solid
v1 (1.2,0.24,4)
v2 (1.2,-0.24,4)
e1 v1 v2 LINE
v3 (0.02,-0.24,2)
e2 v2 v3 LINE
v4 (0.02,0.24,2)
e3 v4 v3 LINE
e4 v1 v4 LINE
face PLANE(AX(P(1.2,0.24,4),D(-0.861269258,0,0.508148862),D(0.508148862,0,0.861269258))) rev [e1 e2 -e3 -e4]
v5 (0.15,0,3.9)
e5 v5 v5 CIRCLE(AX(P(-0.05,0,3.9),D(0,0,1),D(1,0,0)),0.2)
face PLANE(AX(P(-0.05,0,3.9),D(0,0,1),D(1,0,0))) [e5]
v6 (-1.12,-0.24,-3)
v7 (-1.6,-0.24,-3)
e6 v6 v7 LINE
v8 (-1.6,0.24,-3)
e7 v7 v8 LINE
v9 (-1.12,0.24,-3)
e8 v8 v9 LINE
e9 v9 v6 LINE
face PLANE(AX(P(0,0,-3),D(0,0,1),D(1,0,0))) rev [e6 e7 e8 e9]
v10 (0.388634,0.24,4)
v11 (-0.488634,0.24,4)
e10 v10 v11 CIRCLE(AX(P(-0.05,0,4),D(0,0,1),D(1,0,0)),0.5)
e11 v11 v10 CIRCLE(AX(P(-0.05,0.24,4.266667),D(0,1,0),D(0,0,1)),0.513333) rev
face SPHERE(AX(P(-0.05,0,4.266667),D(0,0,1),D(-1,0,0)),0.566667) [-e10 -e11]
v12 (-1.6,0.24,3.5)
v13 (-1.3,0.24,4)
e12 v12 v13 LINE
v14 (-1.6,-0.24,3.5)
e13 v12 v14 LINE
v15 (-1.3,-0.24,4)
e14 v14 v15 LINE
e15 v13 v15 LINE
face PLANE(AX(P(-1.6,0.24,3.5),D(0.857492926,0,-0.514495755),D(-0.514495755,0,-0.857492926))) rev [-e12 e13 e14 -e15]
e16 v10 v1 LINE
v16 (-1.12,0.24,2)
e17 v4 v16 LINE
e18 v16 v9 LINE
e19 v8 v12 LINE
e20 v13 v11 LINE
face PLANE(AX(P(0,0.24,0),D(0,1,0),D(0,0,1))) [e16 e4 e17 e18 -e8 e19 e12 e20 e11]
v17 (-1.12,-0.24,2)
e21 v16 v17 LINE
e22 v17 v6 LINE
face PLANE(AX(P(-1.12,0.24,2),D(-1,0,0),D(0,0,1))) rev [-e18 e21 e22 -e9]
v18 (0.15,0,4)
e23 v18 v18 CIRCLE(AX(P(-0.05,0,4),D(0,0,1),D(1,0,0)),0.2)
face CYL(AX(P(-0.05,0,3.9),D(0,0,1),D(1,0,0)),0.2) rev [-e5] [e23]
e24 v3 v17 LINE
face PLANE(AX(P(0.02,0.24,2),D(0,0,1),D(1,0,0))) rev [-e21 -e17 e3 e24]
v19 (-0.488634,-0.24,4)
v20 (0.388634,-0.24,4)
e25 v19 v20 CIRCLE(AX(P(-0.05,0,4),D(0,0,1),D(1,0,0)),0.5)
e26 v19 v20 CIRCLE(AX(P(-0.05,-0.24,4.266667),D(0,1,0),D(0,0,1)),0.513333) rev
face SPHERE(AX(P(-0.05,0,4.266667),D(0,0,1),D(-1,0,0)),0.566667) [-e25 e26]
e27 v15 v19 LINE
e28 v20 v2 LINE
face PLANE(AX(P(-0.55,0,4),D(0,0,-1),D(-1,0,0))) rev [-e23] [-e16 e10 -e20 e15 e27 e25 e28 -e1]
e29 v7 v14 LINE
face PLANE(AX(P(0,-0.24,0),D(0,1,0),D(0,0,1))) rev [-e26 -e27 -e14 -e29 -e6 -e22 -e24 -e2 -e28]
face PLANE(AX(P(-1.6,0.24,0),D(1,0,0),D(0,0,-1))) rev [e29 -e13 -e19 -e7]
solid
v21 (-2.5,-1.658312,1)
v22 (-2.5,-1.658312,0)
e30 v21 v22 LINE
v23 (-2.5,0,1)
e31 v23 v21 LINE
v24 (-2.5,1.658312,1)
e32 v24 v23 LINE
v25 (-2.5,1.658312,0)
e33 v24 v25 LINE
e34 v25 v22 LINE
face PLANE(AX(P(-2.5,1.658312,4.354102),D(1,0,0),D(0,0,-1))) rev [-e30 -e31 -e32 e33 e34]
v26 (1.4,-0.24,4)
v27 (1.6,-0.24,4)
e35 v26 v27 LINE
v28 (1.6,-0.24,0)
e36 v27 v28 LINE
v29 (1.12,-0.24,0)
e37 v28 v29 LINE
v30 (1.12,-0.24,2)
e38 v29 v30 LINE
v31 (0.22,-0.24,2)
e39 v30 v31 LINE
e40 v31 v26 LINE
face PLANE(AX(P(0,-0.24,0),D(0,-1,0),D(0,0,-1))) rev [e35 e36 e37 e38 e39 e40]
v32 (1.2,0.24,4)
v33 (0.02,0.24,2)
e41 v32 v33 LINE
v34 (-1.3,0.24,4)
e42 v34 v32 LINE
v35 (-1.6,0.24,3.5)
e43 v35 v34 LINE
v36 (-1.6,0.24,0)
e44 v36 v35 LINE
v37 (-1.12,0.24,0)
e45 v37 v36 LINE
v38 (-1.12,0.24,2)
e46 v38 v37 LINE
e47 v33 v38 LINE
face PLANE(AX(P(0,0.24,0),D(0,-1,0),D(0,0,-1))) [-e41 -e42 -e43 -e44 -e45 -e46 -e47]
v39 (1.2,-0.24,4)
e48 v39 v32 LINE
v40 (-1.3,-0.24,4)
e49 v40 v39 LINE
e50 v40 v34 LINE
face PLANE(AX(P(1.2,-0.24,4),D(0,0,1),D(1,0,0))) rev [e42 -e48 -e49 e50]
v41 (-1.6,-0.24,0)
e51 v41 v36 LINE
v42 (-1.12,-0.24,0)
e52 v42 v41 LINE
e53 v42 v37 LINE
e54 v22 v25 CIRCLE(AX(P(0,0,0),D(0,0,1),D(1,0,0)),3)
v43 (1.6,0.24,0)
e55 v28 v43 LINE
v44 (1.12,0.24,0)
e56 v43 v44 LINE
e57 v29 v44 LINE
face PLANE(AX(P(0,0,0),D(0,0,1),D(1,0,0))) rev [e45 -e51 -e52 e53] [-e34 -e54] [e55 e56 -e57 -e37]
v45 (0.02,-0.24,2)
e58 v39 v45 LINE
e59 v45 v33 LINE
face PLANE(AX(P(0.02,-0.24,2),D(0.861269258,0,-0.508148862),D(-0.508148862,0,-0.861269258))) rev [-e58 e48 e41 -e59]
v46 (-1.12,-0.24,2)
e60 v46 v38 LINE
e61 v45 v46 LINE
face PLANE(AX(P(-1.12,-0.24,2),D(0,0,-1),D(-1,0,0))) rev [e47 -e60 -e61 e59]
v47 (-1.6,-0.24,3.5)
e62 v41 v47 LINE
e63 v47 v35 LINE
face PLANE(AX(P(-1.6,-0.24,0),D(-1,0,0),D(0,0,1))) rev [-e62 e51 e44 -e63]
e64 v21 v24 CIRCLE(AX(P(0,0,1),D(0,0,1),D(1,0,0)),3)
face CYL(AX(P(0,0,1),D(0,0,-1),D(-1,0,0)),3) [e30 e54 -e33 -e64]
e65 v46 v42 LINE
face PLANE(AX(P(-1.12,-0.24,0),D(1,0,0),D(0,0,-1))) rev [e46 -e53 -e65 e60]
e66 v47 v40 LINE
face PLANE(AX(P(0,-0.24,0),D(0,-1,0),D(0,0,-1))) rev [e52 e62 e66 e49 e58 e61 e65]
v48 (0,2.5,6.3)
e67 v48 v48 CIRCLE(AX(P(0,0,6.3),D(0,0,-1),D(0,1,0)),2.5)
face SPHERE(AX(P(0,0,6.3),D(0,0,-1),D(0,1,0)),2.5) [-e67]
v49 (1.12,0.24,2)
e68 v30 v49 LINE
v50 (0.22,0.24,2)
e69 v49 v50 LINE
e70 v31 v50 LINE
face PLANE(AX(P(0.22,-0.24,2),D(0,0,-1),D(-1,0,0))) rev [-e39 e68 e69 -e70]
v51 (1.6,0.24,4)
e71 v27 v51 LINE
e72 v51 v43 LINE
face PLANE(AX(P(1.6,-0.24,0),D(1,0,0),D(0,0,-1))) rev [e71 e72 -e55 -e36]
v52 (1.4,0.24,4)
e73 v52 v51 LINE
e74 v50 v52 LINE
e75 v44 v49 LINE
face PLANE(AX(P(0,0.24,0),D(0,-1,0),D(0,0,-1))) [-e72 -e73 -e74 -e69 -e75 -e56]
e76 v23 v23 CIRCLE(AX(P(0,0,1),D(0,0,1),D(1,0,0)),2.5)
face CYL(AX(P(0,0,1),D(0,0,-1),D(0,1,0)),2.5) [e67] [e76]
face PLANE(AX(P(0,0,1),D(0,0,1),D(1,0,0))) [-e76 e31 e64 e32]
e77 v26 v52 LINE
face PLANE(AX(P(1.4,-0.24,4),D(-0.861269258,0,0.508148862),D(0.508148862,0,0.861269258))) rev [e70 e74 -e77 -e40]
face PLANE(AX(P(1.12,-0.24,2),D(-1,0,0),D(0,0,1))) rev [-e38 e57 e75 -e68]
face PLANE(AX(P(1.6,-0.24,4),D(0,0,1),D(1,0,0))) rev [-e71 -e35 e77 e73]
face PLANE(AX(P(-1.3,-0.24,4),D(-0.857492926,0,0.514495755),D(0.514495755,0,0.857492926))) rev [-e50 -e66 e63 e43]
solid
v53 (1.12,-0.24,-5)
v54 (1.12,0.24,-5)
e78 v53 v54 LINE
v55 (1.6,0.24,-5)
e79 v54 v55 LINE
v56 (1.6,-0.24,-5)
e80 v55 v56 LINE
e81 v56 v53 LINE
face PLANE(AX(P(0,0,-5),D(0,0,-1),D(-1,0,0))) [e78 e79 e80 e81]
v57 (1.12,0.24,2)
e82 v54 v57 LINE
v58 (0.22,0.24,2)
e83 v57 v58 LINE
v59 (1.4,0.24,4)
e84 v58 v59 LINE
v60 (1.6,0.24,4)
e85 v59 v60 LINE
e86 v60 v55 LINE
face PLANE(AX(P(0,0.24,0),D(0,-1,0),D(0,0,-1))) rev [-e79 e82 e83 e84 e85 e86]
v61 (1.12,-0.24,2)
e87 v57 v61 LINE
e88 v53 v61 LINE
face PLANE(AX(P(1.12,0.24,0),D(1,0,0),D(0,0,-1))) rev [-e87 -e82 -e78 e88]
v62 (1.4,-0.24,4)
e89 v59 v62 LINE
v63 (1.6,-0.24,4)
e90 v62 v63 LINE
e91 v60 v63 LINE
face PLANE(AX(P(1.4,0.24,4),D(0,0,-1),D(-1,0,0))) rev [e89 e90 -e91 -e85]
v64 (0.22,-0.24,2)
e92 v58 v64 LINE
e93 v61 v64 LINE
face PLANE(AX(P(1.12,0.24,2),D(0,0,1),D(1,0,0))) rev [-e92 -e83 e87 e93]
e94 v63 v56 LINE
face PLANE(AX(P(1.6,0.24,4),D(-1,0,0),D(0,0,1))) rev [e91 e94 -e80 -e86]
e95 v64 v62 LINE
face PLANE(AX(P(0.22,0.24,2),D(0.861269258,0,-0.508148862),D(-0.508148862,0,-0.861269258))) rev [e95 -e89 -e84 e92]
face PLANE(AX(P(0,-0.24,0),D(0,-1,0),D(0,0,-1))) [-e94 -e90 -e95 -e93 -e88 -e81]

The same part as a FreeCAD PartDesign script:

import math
import FreeCAD as App
import Part
import Sketcher

V = App.Vector
Q = App.Units.Quantity


def add_polygon(sketch, points):
    """Adds a closed chain of lines whose ends are joined by coincident constraints."""
    first, n = sketch.GeometryCount, len(points)
    for a, b in zip(points, points[1:] + points[:1]):
        sketch.addGeometry(Part.LineSegment(App.Vector(*a, 0), App.Vector(*b, 0)), False)
    for i in range(n):
        sketch.addConstraint(Sketcher.Constraint("Coincident", first + i, 2, first + (i + 1) % n, 1))

doc = App.newDocument("Part")
body = doc.addObject("PartDesign::Body", "Body")

# Sketch on XY plane
sketch1 = body.newObject("Sketcher::SketchObject", "Sketch")
sketch1.AttachmentSupport = (doc.getObject("XY_Plane"), [""])
sketch1.MapMode = "FlatFace"
sketch1.addGeometry(Part.Circle(V(0, 0, 0), V(0, 0, 1), 3), False)
sketch1.addConstraint([
    Sketcher.Constraint("Coincident", 0, 3, -1, 1),
    Sketcher.Constraint("Diameter", 0, Q("6 mm")),
])
pad1 = body.newObject("PartDesign::Pad", "Pad")
pad1.Profile = sketch1
pad1.Length = 1

# Sketch on YZ plane
sketch2 = body.newObject("Sketcher::SketchObject", "Sketch001")
sketch2.AttachmentSupport = (doc.getObject("YZ_Plane"), [""])
sketch2.MapMode = "FlatFace"
sketch2.addGeometry([
    Part.LineSegment(V(0, 8.8, 0), V(0, 1, 0)),
    Part.LineSegment(V(0, 1, 0), V(2.5, 1, 0)),
    Part.LineSegment(V(2.5, 1, 0), V(2.5, 6.3, 0)),
    Part.ArcOfCircle(Part.Circle(V(0, 6.3, 0), V(0, 0, 1), 2.5), math.radians(0), math.radians(90)),
], False)
sketch2.addConstraint([
    Sketcher.Constraint("Coincident", 0, 2, 1, 1),
    Sketcher.Constraint("Coincident", 1, 2, 2, 1),
    Sketcher.Constraint("Tangent", 2, 2, 3, 1),
    Sketcher.Constraint("Coincident", 3, 2, 0, 1),
    Sketcher.Constraint("Vertical", 0),
    Sketcher.Constraint("Horizontal", 1),
    Sketcher.Constraint("Vertical", 2),
    Sketcher.Constraint("PointOnObject", 3, 3, -2),
    Sketcher.Constraint("PointOnObject", 0, 2, -2),
    Sketcher.Constraint("Radius", 3, Q("2.5 mm")),
    Sketcher.Constraint("DistanceY", 0, 2, 0, 1, Q("7.8 mm")),
    Sketcher.Constraint("DistanceY", -1, 1, 0, 2, Q("1 mm")),
])
revolution = body.newObject("PartDesign::Revolution", "Revolution")
revolution.Profile = sketch2
revolution.ReferenceAxis = (sketch2, ["V_Axis"])
revolution.Angle = 360

# Sketch on XY plane
sketch3 = body.newObject("Sketcher::SketchObject", "Sketch002")
sketch3.AttachmentSupport = (doc.getObject("XY_Plane"), [""])
sketch3.MapMode = "FlatFace"
sketch3.addGeometry([
    Part.LineSegment(V(-2.5, 1.7, 0), V(-2.5, -1.7, 0)),
    Part.ArcOfCircle(Part.Circle(V(0, 0, 0), V(0, 0, 1), 3), math.radians(146), math.radians(214)),
], False)
sketch3.addConstraint([
    Sketcher.Constraint("Coincident", 0, 1, 1, 1),
    Sketcher.Constraint("Coincident", 1, 2, 0, 2),
    Sketcher.Constraint("Vertical", 0),
    Sketcher.Constraint("Coincident", 1, 3, -1, 1),
    Sketcher.Constraint("Radius", 1, Q("3 mm")),
    Sketcher.Constraint("DistanceX", 0, 1, -1, 1, Q("2.5 mm")),
])
pocket1 = body.newObject("PartDesign::Pocket", "Pocket")
pocket1.Profile = sketch3
pocket1.Length = 1
pocket1.Reversed = True

# Sketch on XZ plane
sketch4 = body.newObject("Sketcher::SketchObject", "Sketch003")
sketch4.AttachmentSupport = (doc.getObject("XZ_Plane"), [""])
sketch4.MapMode = "FlatFace"
add_polygon(sketch4, [(-1.6, 0), (-1.6, 3.5), (-1.3, 4), (1.2, 4), (0.02, 2), (-1.12, 2), (-1.12, 0)])  # lines 0-6
add_polygon(sketch4, [(1.6, 4), (1.6, 0), (1.12, 0), (1.12, 2), (0.22, 2), (1.4, 4)])  # lines 7-12
sketch4.addConstraint([
    Sketcher.Constraint("Vertical", 0),
    Sketcher.Constraint("Horizontal", 2),
    Sketcher.Constraint("Horizontal", 4),
    Sketcher.Constraint("Vertical", 5),
    Sketcher.Constraint("Horizontal", 6),
    Sketcher.Constraint("Vertical", 7),
    Sketcher.Constraint("Horizontal", 8),
    Sketcher.Constraint("Vertical", 9),
    Sketcher.Constraint("Horizontal", 10),
    Sketcher.Constraint("Horizontal", 12),
    Sketcher.Constraint("Symmetric", 6, 2, 7, 2, -1, 1),
    Sketcher.Constraint("Symmetric", 5, 2, 8, 2, -2),
    Sketcher.Constraint("Parallel", 3, 11),
    Sketcher.Constraint("Horizontal", 4, 2, 9, 2),
    Sketcher.Constraint("Horizontal", 2, 2, 11, 2),
    Sketcher.Constraint("DistanceY", 5, 2, 5, 1, Q("2 mm")),
    Sketcher.Constraint("DistanceY", 7, 2, 7, 1, Q("4 mm")),
    Sketcher.Constraint("DistanceX", 2, 1, 2, 2, Q("2.5 mm")),
    Sketcher.Constraint("DistanceX", 10, 2, 10, 1, Q("0.9 mm")),
    Sketcher.Constraint("DistanceX", 12, 1, 12, 2, Q("0.2 mm")),
    Sketcher.Constraint("DistanceY", 0, 1, 0, 2, Q("3.5 mm")),
    Sketcher.Constraint("DistanceX", 4, 2, 4, 1, Q("1.14 mm")),
    Sketcher.Constraint("DistanceX", 6, 2, 6, 1, Q("0.48 mm")),
    Sketcher.Constraint("DistanceX", 0, 2, -1, 1, Q("1.6 mm")),
])
pocket2 = body.newObject("PartDesign::Pocket", "Pocket001")
pocket2.Profile = sketch4
pocket2.Length = 0.48
pocket2.Midplane = True
body2 = doc.addObject("PartDesign::Body", "Body001")

# Sketch on XY plane
sketch5 = body2.newObject("Sketcher::SketchObject", "Sketch004")
sketch5.AttachmentSupport = (doc.getObject("XY_Plane001"), [""])
sketch5.MapMode = "FlatFace"
add_polygon(sketch5, [(1.6, 0.24), (1.6, -0.24), (1.12, -0.24), (1.12, 0.24)])  # lines 0-3
sketch5.addConstraint([
    Sketcher.Constraint("Vertical", 0),
    Sketcher.Constraint("Horizontal", 1),
    Sketcher.Constraint("Vertical", 2),
    Sketcher.Constraint("Horizontal", 3),
    Sketcher.Constraint("Equal", 3, 0),
    Sketcher.Constraint("DistanceX", 1, 2, 1, 1, Q("0.48 mm")),
    Sketcher.Constraint("DistanceX", -1, 1, 0, 2, Q("1.6 mm")),
    Sketcher.Constraint("DistanceY", 0, 2, -1, 1, Q("0.24 mm")),
])
pad2 = body2.newObject("PartDesign::Pad", "Pad001")
pad2.Profile = sketch5
pad2.Length = 3
pad2.Reversed = True
body3 = doc.addObject("PartDesign::Body", "Body002")

# Sketch on XY plane
sketch6 = body3.newObject("Sketcher::SketchObject", "Sketch005")
sketch6.AttachmentSupport = (doc.getObject("XY_Plane002"), [""])
sketch6.MapMode = "FlatFace"
add_polygon(sketch6, [(-1.12, 0.24), (-1.12, -0.24), (-1.6, -0.24), (-1.6, 0.24)])  # lines 0-3
sketch6.addConstraint([
    Sketcher.Constraint("Vertical", 0),
    Sketcher.Constraint("Horizontal", 1),
    Sketcher.Constraint("Vertical", 2),
    Sketcher.Constraint("Horizontal", 3),
    Sketcher.Constraint("Equal", 3, 0),
    Sketcher.Constraint("DistanceX", 1, 2, 1, 1, Q("0.48 mm")),
    Sketcher.Constraint("DistanceX", 1, 2, -1, 1, Q("1.6 mm")),
    Sketcher.Constraint("DistanceY", 0, 2, -1, 1, Q("0.24 mm")),
])
pad3 = body3.newObject("PartDesign::Pad", "Pad002")
pad3.Profile = sketch6
pad3.Length = 3
pad3.Reversed = True
body4 = doc.addObject("PartDesign::Body", "Body003")

# Sketch on XY plane
sketch7 = body4.newObject("Sketcher::SketchObject", "Sketch006")
sketch7.AttachmentSupport = (doc.getObject("XY_Plane003"), [""])
sketch7.MapMode = "FlatFace"
sketch7.AttachmentOffset = App.Placement(V(0, 0, -3), App.Rotation())
add_polygon(sketch7, [(1.6, 0.24), (1.6, -0.24), (1.12, -0.24), (1.12, 0.24)])  # lines 0-3
sketch7.addConstraint([
    Sketcher.Constraint("Vertical", 0),
    Sketcher.Constraint("Horizontal", 1),
    Sketcher.Constraint("Vertical", 2),
    Sketcher.Constraint("Horizontal", 3),
    Sketcher.Constraint("Equal", 3, 0),
    Sketcher.Constraint("DistanceX", 1, 2, 1, 1, Q("0.48 mm")),
    Sketcher.Constraint("DistanceX", -1, 1, 0, 2, Q("1.6 mm")),
    Sketcher.Constraint("DistanceY", 0, 2, -1, 1, Q("0.24 mm")),
])
pad4 = body4.newObject("PartDesign::Pad", "Pad003")
pad4.Profile = sketch7
pad4.Length = 2
pad4.Reversed = True
body5 = doc.addObject("PartDesign::Body", "Body004")

# Sketch on XZ plane
sketch8 = body5.newObject("Sketcher::SketchObject", "Sketch007")
sketch8.AttachmentSupport = (doc.getObject("XZ_Plane004"), [""])
sketch8.MapMode = "FlatFace"
add_polygon(sketch8, [(-1.3, 4), (1.2, 4), (0.02, 2), (-1.12, 2), (-1.12, 0), (-1.6, 0), (-1.6, 3.5)])  # lines 0-6
sketch8.addConstraint([
    Sketcher.Constraint("Horizontal", 0),
    Sketcher.Constraint("Horizontal", 2),
    Sketcher.Constraint("Vertical", 3),
    Sketcher.Constraint("Horizontal", 4),
    Sketcher.Constraint("Vertical", 5),
    Sketcher.Constraint("PointOnObject", 3, 2, -1),
    Sketcher.Constraint("DistanceY", 3, 2, 3, 1, Q("2 mm")),
    Sketcher.Constraint("DistanceX", 0, 1, 0, 2, Q("2.5 mm")),
    Sketcher.Constraint("DistanceY", 5, 1, 5, 2, Q("3.5 mm")),
    Sketcher.Constraint("DistanceY", -1, 1, 0, 2, Q("4 mm")),
    Sketcher.Constraint("DistanceX", 2, 2, 2, 1, Q("1.14 mm")),
    Sketcher.Constraint("DistanceX", 4, 2, 4, 1, Q("0.48 mm")),
    Sketcher.Constraint("DistanceX", -1, 1, 0, 2, Q("1.2 mm")),
    Sketcher.Constraint("DistanceX", 4, 2, -1, 1, Q("1.6 mm")),
])
pad5 = body5.newObject("PartDesign::Pad", "Pad004")
pad5.Profile = sketch8
pad5.Length = 0.48
pad5.Midplane = True
doc.recompute()

boolean = body5.newObject("PartDesign::Boolean", "Boolean")
boolean.Type = "Fuse"
boolean.addObjects([body3])

# Sketch on XZ plane
sketch9 = body5.newObject("Sketcher::SketchObject", "Sketch008")
sketch9.AttachmentSupport = (doc.getObject("XZ_Plane004"), [""])
sketch9.MapMode = "FlatFace"
sketch9.addGeometry([
    Part.LineSegment(V(-0.05, 4, 0), V(-0.05, 3.7, 0)),
    Part.ArcOfCircle(Part.Circle(V(-0.05, 4.27, 0), V(0, 0, 1), 0.57), math.radians(-152), math.radians(-90)),
    Part.LineSegment(V(-0.55, 4, 0), V(-0.05, 4, 0)),
], False)
sketch9.addGeometry(Part.LineSegment(V(-0.05, 4.27, 0), V(-0.05, 3.7, 0)), True)  # axis
sketch9.addConstraint([
    Sketcher.Constraint("Coincident", 0, 2, 1, 2),
    Sketcher.Constraint("Coincident", 1, 1, 2, 1),
    Sketcher.Constraint("Coincident", 2, 2, 0, 1),
    Sketcher.Constraint("Vertical", 0),
    Sketcher.Constraint("Horizontal", 2),
    Sketcher.Constraint("Vertical", 3),
    Sketcher.Constraint("Coincident", 3, 1, 1, 3),
    Sketcher.Constraint("Coincident", 3, 2, 0, 2),
    Sketcher.Constraint("DistanceX", 2, 1, 2, 2, Q("0.5 mm")),
    Sketcher.Constraint("DistanceY", 0, 2, 0, 1, Q("0.3 mm")),
    Sketcher.Constraint("DistanceY", -1, 1, 1, 1, Q("4 mm")),
    Sketcher.Constraint("DistanceX", 1, 3, -1, 1, Q("0.05 mm")),
])
groove = body5.newObject("PartDesign::Groove", "Groove")
groove.Profile = sketch9
groove.ReferenceAxis = (sketch9, ["Axis0"])
groove.Angle = 360
body6 = doc.addObject("PartDesign::Body", "Body005")
body6.AllowCompound = True

# Sketch on XZ plane
sketch10 = body6.newObject("Sketcher::SketchObject", "Sketch009")
sketch10.AttachmentSupport = (doc.getObject("XZ_Plane005"), [""])
sketch10.MapMode = "FlatFace"
add_polygon(sketch10, [(0.22, 2), (1.4, 4), (1.6, 4), (1.6, 0), (1.12, 0), (1.12, 2)])  # lines 0-5
sketch10.addConstraint([
    Sketcher.Constraint("Horizontal", 1),
    Sketcher.Constraint("Vertical", 2),
    Sketcher.Constraint("Horizontal", 3),
    Sketcher.Constraint("Vertical", 4),
    Sketcher.Constraint("Horizontal", 5),
    Sketcher.Constraint("PointOnObject", 2, 2, -1),
    Sketcher.Constraint("DistanceY", 2, 2, 2, 1, Q("4 mm")),
    Sketcher.Constraint("DistanceY", 4, 1, 4, 2, Q("2 mm")),
    Sketcher.Constraint("DistanceX", 1, 1, 1, 2, Q("0.2 mm")),
    Sketcher.Constraint("DistanceX", 5, 2, 5, 1, Q("0.9 mm")),
    Sketcher.Constraint("DistanceX", 3, 2, 3, 1, Q("0.48 mm")),
    Sketcher.Constraint("DistanceX", -1, 1, 0, 2, Q("1.4 mm")),
])
pad6 = body6.newObject("PartDesign::Pad", "Pad005")
pad6.Profile = sketch10
pad6.Length = 0.48
pad6.Midplane = True
doc.recompute()

boolean2 = body6.newObject("PartDesign::Boolean", "Boolean001")
boolean2.Type = "Fuse"
boolean2.addObjects([body4])
doc.recompute()

boolean3 = body6.newObject("PartDesign::Boolean", "Boolean002")
boolean3.Type = "Fuse"
boolean3.addObjects([body2])
body7 = doc.addObject("PartDesign::Body", "Body006")

# Sketch on XZ plane
sketch11 = body7.newObject("Sketcher::SketchObject", "Sketch010")
sketch11.AttachmentSupport = (doc.getObject("XZ_Plane006"), [""])
sketch11.MapMode = "FlatFace"
sketch11.addGeometry([
    Part.LineSegment(V(-0.55, 4, 0), V(-0.05, 4, 0)),
    Part.LineSegment(V(-0.05, 4, 0), V(-0.05, 3.7, 0)),
    Part.ArcOfCircle(Part.Circle(V(-0.05, 4.27, 0), V(0, 0, 1), 0.57), math.radians(-152), math.radians(-90)),
], False)
sketch11.addGeometry(Part.LineSegment(V(-0.05, 4.27, 0), V(-0.05, 3.7, 0)), True)  # axis
sketch11.addConstraint([
    Sketcher.Constraint("Coincident", 0, 2, 1, 1),
    Sketcher.Constraint("Coincident", 1, 2, 2, 2),
    Sketcher.Constraint("Coincident", 2, 1, 0, 1),
    Sketcher.Constraint("Horizontal", 0),
    Sketcher.Constraint("Vertical", 1),
    Sketcher.Constraint("Vertical", 3),
    Sketcher.Constraint("Coincident", 3, 1, 2, 3),
    Sketcher.Constraint("Coincident", 3, 2, 1, 2),
    Sketcher.Constraint("DistanceX", 0, 1, 0, 2, Q("0.5 mm")),
    Sketcher.Constraint("DistanceY", 1, 2, 1, 1, Q("0.3 mm")),
    Sketcher.Constraint("DistanceY", -1, 1, 0, 2, Q("4 mm")),
    Sketcher.Constraint("DistanceX", 2, 3, -1, 1, Q("0.05 mm")),
])
revolution2 = body7.newObject("PartDesign::Revolution", "Revolution001")
revolution2.Profile = sketch11
revolution2.ReferenceAxis = (sketch11, ["Axis0"])
revolution2.Angle = 360
doc.recompute()

boolean4 = body7.newObject("PartDesign::Boolean", "Boolean003")
boolean4.Type = "Fuse"
boolean4.addObjects([body5])

# Sketch on XY plane
sketch12 = body7.newObject("Sketcher::SketchObject", "Sketch011")
sketch12.AttachmentSupport = (doc.getObject("XY_Plane006"), [""])
sketch12.MapMode = "FlatFace"
sketch12.AttachmentOffset = App.Placement(V(0, 0, 4), App.Rotation())
sketch12.addGeometry(Part.Circle(V(-0.05, 0, 0), V(0, 0, 1), 0.2), False)
sketch12.addConstraint([
    Sketcher.Constraint("PointOnObject", 0, 3, -1),
    Sketcher.Constraint("Diameter", 0, Q("0.4 mm")),
    Sketcher.Constraint("DistanceX", 0, 3, -1, 1, Q("0.05 mm")),
])
pocket3 = body7.newObject("PartDesign::Pocket", "Pocket002")
pocket3.Profile = sketch12
pocket3.Length = 0.1

doc.recompute()
